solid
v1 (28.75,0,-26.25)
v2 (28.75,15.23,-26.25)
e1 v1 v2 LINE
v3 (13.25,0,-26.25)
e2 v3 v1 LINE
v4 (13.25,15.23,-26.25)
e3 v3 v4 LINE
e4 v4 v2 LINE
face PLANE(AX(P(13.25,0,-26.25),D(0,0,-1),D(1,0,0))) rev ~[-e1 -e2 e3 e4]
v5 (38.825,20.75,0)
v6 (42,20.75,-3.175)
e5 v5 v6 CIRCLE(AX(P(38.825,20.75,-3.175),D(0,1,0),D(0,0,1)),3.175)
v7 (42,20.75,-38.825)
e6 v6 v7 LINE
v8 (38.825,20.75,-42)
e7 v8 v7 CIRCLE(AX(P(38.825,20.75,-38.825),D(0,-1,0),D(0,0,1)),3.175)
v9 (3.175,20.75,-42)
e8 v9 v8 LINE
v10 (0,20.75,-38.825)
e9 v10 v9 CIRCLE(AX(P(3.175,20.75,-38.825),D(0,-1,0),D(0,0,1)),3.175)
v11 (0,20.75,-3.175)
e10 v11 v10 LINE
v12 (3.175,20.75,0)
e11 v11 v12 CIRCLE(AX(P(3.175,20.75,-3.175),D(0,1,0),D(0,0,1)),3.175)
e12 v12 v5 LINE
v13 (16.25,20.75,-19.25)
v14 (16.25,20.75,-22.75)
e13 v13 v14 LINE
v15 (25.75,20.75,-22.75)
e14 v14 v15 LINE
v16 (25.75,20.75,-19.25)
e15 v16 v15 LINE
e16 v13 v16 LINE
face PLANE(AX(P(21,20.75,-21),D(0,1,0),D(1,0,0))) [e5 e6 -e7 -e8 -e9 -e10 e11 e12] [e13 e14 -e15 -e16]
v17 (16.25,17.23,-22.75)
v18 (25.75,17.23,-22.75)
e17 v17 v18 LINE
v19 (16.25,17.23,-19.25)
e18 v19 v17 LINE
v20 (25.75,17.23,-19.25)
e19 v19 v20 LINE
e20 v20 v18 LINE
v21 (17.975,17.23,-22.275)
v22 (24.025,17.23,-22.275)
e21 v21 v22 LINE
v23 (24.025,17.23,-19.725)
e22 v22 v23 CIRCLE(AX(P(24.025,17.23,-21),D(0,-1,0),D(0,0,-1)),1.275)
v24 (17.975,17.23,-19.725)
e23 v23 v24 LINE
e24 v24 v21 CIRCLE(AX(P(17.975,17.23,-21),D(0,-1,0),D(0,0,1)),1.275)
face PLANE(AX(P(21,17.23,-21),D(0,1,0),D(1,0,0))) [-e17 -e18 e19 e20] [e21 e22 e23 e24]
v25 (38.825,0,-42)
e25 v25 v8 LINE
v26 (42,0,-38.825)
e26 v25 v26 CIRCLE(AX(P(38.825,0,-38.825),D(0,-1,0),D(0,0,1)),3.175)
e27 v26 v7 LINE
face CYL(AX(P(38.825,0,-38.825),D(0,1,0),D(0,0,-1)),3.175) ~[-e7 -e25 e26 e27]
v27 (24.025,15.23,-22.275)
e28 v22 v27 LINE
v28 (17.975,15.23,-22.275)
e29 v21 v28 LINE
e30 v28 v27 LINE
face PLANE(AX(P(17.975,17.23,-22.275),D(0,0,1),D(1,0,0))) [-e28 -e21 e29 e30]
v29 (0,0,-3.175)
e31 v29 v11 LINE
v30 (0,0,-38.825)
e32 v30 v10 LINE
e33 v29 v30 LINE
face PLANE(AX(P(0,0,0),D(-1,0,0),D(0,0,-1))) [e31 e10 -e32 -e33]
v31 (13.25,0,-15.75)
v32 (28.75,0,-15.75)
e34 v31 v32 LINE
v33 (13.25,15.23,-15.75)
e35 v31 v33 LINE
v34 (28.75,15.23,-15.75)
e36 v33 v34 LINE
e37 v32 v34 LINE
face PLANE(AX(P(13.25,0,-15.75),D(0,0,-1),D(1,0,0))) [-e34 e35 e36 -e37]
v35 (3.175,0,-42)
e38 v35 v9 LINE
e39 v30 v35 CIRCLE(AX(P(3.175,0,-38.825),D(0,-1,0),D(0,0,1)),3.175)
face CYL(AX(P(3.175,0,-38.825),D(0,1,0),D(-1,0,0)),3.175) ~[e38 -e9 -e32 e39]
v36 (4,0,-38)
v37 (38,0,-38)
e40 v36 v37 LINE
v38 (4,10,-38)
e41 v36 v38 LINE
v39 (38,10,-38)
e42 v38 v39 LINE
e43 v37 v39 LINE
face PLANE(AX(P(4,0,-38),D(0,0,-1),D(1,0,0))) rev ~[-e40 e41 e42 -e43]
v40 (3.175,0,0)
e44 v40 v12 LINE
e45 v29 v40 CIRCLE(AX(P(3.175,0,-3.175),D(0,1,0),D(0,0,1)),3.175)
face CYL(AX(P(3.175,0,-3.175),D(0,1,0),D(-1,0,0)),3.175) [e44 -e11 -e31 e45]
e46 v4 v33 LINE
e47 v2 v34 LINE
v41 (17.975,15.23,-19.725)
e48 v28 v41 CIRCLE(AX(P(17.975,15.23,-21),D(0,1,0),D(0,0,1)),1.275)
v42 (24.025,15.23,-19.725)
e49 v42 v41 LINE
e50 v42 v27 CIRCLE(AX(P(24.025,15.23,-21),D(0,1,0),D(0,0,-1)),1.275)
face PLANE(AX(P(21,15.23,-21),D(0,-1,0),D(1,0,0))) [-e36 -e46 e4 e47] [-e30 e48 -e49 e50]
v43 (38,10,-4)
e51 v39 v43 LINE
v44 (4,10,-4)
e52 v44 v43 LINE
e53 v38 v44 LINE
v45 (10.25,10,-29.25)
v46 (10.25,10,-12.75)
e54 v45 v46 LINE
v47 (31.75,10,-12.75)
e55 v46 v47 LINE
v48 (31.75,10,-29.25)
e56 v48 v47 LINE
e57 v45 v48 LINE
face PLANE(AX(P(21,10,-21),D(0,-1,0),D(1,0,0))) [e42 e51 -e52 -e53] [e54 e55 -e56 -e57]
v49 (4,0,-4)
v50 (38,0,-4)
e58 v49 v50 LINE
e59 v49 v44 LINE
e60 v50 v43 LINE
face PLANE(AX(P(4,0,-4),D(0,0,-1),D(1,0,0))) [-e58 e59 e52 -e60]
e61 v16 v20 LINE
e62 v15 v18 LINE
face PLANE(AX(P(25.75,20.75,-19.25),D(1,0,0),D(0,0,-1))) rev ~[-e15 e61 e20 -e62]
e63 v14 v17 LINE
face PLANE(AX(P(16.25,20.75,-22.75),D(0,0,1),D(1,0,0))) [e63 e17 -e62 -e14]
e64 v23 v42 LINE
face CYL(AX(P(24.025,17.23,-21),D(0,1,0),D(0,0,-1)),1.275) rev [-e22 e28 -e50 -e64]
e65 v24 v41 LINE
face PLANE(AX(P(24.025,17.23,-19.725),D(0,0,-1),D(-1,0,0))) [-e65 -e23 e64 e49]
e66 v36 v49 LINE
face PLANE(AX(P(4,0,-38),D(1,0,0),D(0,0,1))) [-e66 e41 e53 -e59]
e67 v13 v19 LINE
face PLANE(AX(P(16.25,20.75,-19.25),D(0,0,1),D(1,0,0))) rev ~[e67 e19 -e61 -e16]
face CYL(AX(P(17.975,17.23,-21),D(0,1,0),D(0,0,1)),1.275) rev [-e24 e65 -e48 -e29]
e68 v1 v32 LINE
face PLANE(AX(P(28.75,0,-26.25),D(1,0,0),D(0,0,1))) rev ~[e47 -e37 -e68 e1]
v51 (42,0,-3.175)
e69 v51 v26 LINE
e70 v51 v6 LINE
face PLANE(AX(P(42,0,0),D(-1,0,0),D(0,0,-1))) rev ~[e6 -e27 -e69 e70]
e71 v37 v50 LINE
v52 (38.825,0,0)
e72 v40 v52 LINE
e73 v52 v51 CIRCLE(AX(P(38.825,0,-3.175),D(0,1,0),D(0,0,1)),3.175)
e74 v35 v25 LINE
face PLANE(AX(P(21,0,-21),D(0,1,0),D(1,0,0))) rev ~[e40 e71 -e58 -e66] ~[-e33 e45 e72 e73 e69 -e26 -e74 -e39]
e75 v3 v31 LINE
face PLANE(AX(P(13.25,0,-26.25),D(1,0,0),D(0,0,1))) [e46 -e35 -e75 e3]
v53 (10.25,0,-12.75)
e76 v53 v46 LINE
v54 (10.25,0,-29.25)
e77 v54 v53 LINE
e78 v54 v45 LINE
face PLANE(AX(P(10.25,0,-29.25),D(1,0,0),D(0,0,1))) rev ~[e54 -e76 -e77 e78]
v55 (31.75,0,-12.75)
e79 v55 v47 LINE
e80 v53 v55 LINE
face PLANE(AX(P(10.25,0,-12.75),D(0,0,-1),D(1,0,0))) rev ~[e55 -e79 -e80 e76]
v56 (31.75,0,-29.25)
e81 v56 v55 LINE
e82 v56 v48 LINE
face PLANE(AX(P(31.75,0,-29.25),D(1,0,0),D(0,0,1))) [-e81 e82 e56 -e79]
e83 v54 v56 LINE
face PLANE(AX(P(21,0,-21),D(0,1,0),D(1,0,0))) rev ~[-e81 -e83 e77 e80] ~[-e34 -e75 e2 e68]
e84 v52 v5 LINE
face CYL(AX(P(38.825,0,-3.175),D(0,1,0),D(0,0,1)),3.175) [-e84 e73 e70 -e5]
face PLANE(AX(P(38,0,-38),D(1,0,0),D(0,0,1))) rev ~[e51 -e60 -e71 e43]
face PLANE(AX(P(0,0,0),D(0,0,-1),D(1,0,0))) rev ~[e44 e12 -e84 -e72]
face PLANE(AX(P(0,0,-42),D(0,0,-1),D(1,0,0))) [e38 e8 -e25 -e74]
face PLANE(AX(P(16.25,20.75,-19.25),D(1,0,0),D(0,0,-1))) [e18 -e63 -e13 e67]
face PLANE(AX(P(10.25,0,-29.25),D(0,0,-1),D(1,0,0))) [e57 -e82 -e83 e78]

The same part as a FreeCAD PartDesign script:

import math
import FreeCAD as App
import Part
import Sketcher

V = App.Vector
Q = App.Units.Quantity


def edges_at(feature, points):
    """Names of the edges that pass closest to the given points."""
    edges = feature.Shape.Edges
    near = lambda p: min(range(len(edges)), key=lambda i: edges[i].distToShape(Part.Vertex(*p))[0])
    return sorted({f"Edge{near(p) + 1}" for p in points})

doc = App.newDocument("Part")
body = doc.addObject("PartDesign::Body", "Body")

# Sketch on XZ plane
sketch1 = doc.addObject("Sketcher::SketchObject", "Sketch")
body.addObject(sketch1)
sketch1.AttachmentSupport = (doc.XZ_Plane, [""])
sketch1.MapMode = "FlatFace"
sketch1.addGeometry([
    Part.LineSegment(V(0, -42, 0), V(0, 0, 0)),
    Part.LineSegment(V(0, 0, 0), V(42, 0, 0)),
    Part.LineSegment(V(42, 0, 0), V(42, -42, 0)),
    Part.LineSegment(V(42, -42, 0), V(0, -42, 0)),
], False)
sketch1.addConstraint([
    Sketcher.Constraint("Coincident", 0, 2, 1, 1),
    Sketcher.Constraint("Coincident", 1, 2, 2, 1),
    Sketcher.Constraint("Coincident", 2, 2, 3, 1),
    Sketcher.Constraint("Coincident", 3, 2, 0, 1),
    Sketcher.Constraint("Vertical", 0),
    Sketcher.Constraint("Horizontal", 1),
    Sketcher.Constraint("Vertical", 2),
    Sketcher.Constraint("Horizontal", 3),
    Sketcher.Constraint("Coincident", 0, 2, -1, 1),
    Sketcher.Constraint("Equal", 3, 0),
    Sketcher.Constraint("DistanceX", 1, 1, 1, 2, Q("42 mm")),
])
pad1 = doc.addObject("PartDesign::Pad", "Pad")
body.addObject(pad1)
pad1.Profile = sketch1
pad1.Length = 20.75
pad1.Reversed = True

# Sketch on XZ plane
sketch2 = doc.addObject("Sketcher::SketchObject", "Sketch001")
body.addObject(sketch2)
sketch2.AttachmentSupport = (doc.XZ_Plane, [""])
sketch2.MapMode = "FlatFace"
sketch2.AttachmentOffset = App.Placement(V(0, 0, -20.75), App.Rotation())
sketch2.addGeometry([
    Part.LineSegment(V(16.2, -22.8, 0), V(16.2, -19.2, 0)),
    Part.LineSegment(V(16.2, -19.2, 0), V(25.8, -19.2, 0)),
    Part.LineSegment(V(25.8, -19.2, 0), V(25.8, -22.8, 0)),
    Part.LineSegment(V(25.8, -22.8, 0), V(16.2, -22.8, 0)),
], False)
sketch2.addConstraint([
    Sketcher.Constraint("Coincident", 0, 2, 1, 1),
    Sketcher.Constraint("Coincident", 1, 2, 2, 1),
    Sketcher.Constraint("Coincident", 2, 2, 3, 1),
    Sketcher.Constraint("Coincident", 3, 2, 0, 1),
    Sketcher.Constraint("Vertical", 0),
    Sketcher.Constraint("Horizontal", 1),
    Sketcher.Constraint("Vertical", 2),
    Sketcher.Constraint("Horizontal", 3),
    Sketcher.Constraint("DistanceX", 1, 1, 1, 2, Q("9.5 mm")),
    Sketcher.Constraint("DistanceY", 0, 1, 0, 2, Q("3.5 mm")),
    Sketcher.Constraint("DistanceX", -1, 1, 0, 2, Q("16.25 mm")),
    Sketcher.Constraint("DistanceY", 0, 2, -1, 1, Q("19.25 mm")),
])
pocket1 = doc.addObject("PartDesign::Pocket", "Pocket")
body.addObject(pocket1)
pocket1.Profile = sketch2
pocket1.Length = 3.52
pocket1.Reversed = True

# Sketch on XZ plane
sketch3 = doc.addObject("Sketcher::SketchObject", "Sketch002")
body.addObject(sketch3)
sketch3.AttachmentSupport = (doc.XZ_Plane, [""])
sketch3.MapMode = "FlatFace"
sketch3.addGeometry([
    Part.LineSegment(V(13, -16, 0), V(13, -26, 0)),
    Part.LineSegment(V(13, -26, 0), V(29, -26, 0)),
    Part.LineSegment(V(29, -26, 0), V(29, -16, 0)),
    Part.LineSegment(V(29, -16, 0), V(13, -16, 0)),
], False)
sketch3.addConstraint([
    Sketcher.Constraint("Coincident", 0, 2, 1, 1),
    Sketcher.Constraint("Coincident", 1, 2, 2, 1),
    Sketcher.Constraint("Coincident", 2, 2, 3, 1),
    Sketcher.Constraint("Coincident", 3, 2, 0, 1),
    Sketcher.Constraint("Vertical", 0),
    Sketcher.Constraint("Horizontal", 1),
    Sketcher.Constraint("Vertical", 2),
    Sketcher.Constraint("Horizontal", 3),
    Sketcher.Constraint("DistanceX", 1, 1, 1, 2, Q("15.5 mm")),
    Sketcher.Constraint("DistanceY", 0, 2, 0, 1, Q("10.5 mm")),
    Sketcher.Constraint("DistanceX", -1, 1, 0, 2, Q("13.25 mm")),
    Sketcher.Constraint("DistanceY", 0, 2, -1, 1, Q("26.25 mm")),
])
pocket2 = doc.addObject("PartDesign::Pocket", "Pocket001")
body.addObject(pocket2)
pocket2.Profile = sketch3
pocket2.Length = 15.23

# Sketch on XZ plane
sketch4 = doc.addObject("Sketcher::SketchObject", "Sketch003")
body.addObject(sketch4)
sketch4.AttachmentSupport = (doc.XZ_Plane, [""])
sketch4.MapMode = "FlatFace"
sketch4.AttachmentOffset = App.Placement(V(0, 0, -17.23), App.Rotation())
sketch4.addGeometry([
    Part.LineSegment(V(24, -22.3, 0), V(18, -22.3, 0)),
    Part.ArcOfCircle(Part.Circle(V(18, -21, 0), V(0, 0, 1), 1.3), math.radians(90), math.radians(270)),
    Part.LineSegment(V(18, -19.7, 0), V(24, -19.7, 0)),
    Part.ArcOfCircle(Part.Circle(V(24, -21, 0), V(0, 0, 1), 1.3), math.radians(-90), math.radians(90)),
], False)
sketch4.addConstraint([
    Sketcher.Constraint("Tangent", 0, 2, 1, 2),
    Sketcher.Constraint("Tangent", 1, 1, 2, 1),
    Sketcher.Constraint("Tangent", 2, 2, 3, 2),
    Sketcher.Constraint("Tangent", 3, 1, 0, 1),
    Sketcher.Constraint("Horizontal", 0),
    Sketcher.Constraint("Horizontal", 2),
    Sketcher.Constraint("DistanceY", 1, 3, -1, 1, Q("21 mm")),
    Sketcher.Constraint("Radius", 1, Q("1.275 mm")),
    Sketcher.Constraint("DistanceX", 0, 2, 0, 1, Q("6.05 mm")),
    Sketcher.Constraint("DistanceX", -1, 1, 1, 3, Q("17.975 mm")),
])
pocket3 = doc.addObject("PartDesign::Pocket", "Pocket002")
body.addObject(pocket3)
pocket3.Profile = sketch4
pocket3.Type = "UpToFirst"
pocket3.Reversed = True

# Sketch on XZ plane
sketch5 = doc.addObject("Sketcher::SketchObject", "Sketch004")
body.addObject(sketch5)
sketch5.AttachmentSupport = (doc.XZ_Plane, [""])
sketch5.MapMode = "FlatFace"
sketch5.addGeometry([
    Part.LineSegment(V(4, -4, 0), V(4, -38, 0)),  # 0
    Part.LineSegment(V(4, -38, 0), V(38, -38, 0)),  # 1
    Part.LineSegment(V(38, -38, 0), V(38, -4, 0)),  # 2
    Part.LineSegment(V(38, -4, 0), V(4, -4, 0)),  # 3
    Part.LineSegment(V(32, -29, 0), V(10, -29, 0)),  # 4
    Part.LineSegment(V(10, -29, 0), V(10, -13, 0)),  # 5
    Part.LineSegment(V(10, -13, 0), V(32, -13, 0)),  # 6
    Part.LineSegment(V(32, -13, 0), V(32, -29, 0)),  # 7
], False)
sketch5.addConstraint([
    Sketcher.Constraint("Coincident", 0, 2, 1, 1),
    Sketcher.Constraint("Coincident", 1, 2, 2, 1),
    Sketcher.Constraint("Coincident", 2, 2, 3, 1),
    Sketcher.Constraint("Coincident", 3, 2, 0, 1),
    Sketcher.Constraint("Coincident", 4, 2, 5, 1),
    Sketcher.Constraint("Coincident", 5, 2, 6, 1),
    Sketcher.Constraint("Coincident", 6, 2, 7, 1),
    Sketcher.Constraint("Coincident", 7, 2, 4, 1),
    Sketcher.Constraint("Vertical", 0),
    Sketcher.Constraint("Horizontal", 1),
    Sketcher.Constraint("Vertical", 2),
    Sketcher.Constraint("Horizontal", 3),
    Sketcher.Constraint("Horizontal", 4),
    Sketcher.Constraint("Vertical", 5),
    Sketcher.Constraint("Horizontal", 6),
    Sketcher.Constraint("Vertical", 7),
    Sketcher.Constraint("Equal", 3, 0),
    Sketcher.Constraint("DistanceX", 1, 1, 1, 2, Q("34 mm")),
    Sketcher.Constraint("DistanceX", 4, 2, 4, 1, Q("21.5 mm")),
    Sketcher.Constraint("DistanceY", 5, 1, 5, 2, Q("16.5 mm")),
    Sketcher.Constraint("DistanceX", -1, 1, 0, 2, Q("4 mm")),
    Sketcher.Constraint("DistanceY", 0, 2, -1, 1, Q("38 mm")),
    Sketcher.Constraint("DistanceX", -1, 1, 4, 2, Q("10.25 mm")),
    Sketcher.Constraint("DistanceY", 4, 2, -1, 1, Q("29.25 mm")),
])
pocket4 = doc.addObject("PartDesign::Pocket", "Pocket003")
body.addObject(pocket4)
pocket4.Profile = sketch5
pocket4.Length = 10
doc.recompute()

fillet = doc.addObject("PartDesign::Fillet", "Fillet")
body.addObject(fillet)
fillet.Base = (pocket4, edges_at(pocket4, [
    (0, 10.375, -42),
    (42, 10.375, -42),
    (42, 10.375, 0),
    (0, 10.375, 0),
]))
fillet.Radius = 3.175

doc.recompute()
